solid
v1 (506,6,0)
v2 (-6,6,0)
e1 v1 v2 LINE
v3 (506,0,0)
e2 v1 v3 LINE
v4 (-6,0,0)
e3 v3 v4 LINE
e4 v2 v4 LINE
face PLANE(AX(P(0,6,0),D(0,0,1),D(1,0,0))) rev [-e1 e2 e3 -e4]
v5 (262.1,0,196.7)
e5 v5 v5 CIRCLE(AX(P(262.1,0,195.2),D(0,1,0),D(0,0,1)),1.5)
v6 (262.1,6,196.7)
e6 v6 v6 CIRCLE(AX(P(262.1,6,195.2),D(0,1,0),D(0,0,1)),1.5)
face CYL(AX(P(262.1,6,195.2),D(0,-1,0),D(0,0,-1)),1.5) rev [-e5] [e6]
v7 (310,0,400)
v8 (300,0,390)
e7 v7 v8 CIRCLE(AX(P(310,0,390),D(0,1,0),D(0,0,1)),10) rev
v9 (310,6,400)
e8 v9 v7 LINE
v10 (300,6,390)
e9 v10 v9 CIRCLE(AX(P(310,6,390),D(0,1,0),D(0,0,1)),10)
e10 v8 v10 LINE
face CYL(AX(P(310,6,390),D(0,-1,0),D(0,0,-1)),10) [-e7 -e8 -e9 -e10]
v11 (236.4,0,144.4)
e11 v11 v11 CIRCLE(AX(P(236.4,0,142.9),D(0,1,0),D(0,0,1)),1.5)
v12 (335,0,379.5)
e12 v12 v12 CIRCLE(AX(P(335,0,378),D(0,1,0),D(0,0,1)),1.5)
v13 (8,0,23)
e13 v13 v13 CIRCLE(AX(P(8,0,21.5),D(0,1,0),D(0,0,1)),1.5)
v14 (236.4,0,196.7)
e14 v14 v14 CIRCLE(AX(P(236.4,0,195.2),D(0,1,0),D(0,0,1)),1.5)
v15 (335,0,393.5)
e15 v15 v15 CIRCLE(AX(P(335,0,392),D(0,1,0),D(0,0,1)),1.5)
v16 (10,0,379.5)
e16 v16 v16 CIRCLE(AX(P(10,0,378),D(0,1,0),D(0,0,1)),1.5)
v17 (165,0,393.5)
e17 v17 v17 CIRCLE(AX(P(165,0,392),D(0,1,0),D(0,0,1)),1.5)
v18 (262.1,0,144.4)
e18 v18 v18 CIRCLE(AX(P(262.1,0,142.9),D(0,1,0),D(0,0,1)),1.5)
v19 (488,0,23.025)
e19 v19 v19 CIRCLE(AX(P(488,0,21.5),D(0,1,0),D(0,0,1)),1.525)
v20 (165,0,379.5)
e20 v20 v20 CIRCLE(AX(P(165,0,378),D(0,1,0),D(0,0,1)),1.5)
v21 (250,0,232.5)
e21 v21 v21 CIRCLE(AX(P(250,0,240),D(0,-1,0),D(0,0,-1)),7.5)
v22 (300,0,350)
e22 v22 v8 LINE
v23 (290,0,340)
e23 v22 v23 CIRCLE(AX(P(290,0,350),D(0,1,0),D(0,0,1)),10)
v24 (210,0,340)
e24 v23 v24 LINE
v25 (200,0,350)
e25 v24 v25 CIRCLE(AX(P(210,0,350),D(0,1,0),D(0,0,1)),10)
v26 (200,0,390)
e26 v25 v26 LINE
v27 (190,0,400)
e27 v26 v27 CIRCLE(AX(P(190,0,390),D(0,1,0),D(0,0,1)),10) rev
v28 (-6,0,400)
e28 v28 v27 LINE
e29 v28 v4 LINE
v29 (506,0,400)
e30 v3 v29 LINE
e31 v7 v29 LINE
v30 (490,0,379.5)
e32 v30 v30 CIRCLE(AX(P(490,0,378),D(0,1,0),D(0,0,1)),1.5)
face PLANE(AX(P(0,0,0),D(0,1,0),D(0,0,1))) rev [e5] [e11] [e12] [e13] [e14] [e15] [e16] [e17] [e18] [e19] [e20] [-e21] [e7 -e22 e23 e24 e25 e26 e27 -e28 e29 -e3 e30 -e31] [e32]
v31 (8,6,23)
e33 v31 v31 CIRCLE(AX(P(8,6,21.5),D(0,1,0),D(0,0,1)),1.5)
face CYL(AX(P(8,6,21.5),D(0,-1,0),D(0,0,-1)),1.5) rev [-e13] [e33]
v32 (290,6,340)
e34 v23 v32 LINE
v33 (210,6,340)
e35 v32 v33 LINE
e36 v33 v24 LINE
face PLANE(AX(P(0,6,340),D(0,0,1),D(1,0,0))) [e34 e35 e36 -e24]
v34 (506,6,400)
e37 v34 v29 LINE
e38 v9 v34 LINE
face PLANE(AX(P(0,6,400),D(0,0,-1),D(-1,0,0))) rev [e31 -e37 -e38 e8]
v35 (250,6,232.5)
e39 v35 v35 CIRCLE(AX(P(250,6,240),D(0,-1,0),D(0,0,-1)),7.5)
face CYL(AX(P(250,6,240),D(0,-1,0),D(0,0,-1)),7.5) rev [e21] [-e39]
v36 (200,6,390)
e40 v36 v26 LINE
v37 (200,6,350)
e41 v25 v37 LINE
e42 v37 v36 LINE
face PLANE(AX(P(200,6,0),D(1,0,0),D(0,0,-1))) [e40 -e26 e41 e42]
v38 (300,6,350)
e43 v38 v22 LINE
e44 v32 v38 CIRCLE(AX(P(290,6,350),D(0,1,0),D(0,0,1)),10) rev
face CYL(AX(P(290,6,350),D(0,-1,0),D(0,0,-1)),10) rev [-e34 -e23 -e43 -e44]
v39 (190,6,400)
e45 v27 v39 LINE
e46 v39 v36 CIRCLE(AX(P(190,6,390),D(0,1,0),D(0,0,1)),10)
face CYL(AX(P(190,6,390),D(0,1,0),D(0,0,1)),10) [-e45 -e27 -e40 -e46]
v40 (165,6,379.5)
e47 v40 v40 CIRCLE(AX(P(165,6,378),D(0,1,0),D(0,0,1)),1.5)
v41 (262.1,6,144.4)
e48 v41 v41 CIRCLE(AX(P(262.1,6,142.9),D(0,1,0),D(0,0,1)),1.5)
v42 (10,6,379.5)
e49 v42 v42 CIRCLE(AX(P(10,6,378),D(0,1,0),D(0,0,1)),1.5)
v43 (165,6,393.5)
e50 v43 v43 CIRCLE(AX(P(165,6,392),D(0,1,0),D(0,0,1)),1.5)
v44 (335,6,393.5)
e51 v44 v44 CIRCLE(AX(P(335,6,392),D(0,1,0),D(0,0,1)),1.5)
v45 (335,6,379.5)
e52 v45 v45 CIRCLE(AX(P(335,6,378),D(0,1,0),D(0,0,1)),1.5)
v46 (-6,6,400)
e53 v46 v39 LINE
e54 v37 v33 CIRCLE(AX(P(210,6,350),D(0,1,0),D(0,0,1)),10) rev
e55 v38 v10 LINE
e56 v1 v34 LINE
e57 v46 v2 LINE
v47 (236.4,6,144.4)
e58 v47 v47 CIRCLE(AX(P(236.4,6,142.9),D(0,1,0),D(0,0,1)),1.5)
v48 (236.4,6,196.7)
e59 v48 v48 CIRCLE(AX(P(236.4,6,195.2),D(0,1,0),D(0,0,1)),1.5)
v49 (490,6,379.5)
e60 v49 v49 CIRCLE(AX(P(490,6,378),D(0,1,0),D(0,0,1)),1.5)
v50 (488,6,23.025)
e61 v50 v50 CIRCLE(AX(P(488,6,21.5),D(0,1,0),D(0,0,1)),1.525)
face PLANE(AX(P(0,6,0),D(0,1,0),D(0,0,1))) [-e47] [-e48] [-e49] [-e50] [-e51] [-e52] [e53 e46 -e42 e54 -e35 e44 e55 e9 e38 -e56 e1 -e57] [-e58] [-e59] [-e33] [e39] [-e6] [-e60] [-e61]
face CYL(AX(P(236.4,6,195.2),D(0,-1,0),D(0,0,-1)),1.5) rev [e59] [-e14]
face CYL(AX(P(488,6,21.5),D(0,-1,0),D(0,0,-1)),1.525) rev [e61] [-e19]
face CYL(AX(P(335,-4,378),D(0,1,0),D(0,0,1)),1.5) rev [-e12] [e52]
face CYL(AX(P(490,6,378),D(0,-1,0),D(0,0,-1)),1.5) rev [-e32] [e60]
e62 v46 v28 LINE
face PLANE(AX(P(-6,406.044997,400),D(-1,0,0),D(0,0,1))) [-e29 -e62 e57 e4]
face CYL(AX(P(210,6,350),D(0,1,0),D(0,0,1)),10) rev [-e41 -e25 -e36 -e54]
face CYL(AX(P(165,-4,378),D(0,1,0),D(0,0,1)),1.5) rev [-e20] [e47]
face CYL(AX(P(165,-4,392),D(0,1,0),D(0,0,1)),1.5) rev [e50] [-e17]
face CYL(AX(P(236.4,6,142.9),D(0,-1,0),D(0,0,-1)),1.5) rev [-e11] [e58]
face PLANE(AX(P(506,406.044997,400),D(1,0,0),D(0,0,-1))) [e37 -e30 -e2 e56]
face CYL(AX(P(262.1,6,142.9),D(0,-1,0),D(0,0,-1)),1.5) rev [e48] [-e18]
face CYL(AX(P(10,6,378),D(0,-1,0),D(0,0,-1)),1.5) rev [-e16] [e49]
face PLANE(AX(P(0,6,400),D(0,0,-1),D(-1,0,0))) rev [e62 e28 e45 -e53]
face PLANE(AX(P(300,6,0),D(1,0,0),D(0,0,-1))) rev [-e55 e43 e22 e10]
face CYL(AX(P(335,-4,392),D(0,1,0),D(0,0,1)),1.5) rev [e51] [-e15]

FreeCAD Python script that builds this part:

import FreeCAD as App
import Part
import Sketcher
from FreeCAD import Vector


def edges_at(feature, points):
    """Names of the edges that pass closest to the given points."""
    edges = feature.Shape.Edges
    near = lambda p: min(range(len(edges)), key=lambda i: edges[i].distToShape(Part.Vertex(*p))[0])
    return sorted({f"Edge{near(p) + 1}" for p in points})


def add_polygon(sketch, points):
    """Adds a closed chain of lines whose ends are joined by coincident constraints."""
    first, n = sketch.GeometryCount, len(points)
    for a, b in zip(points, points[1:] + points[:1]):
        sketch.addGeometry(Part.LineSegment(App.Vector(*a, 0), App.Vector(*b, 0)), False)
    for i in range(n):
        sketch.addConstraint(Sketcher.Constraint("Coincident", first + i, 2, first + (i + 1) % n, 1))

doc = App.newDocument("Part")
body = doc.addObject("PartDesign::Body", "Body")

# Sketch on XZ plane
sketch1 = body.newObject("Sketcher::SketchObject", "Sketch")
sketch1.AttachmentSupport = (doc.getObject("XZ_Plane"), [""])
sketch1.MapMode = "FlatFace"
add_polygon(sketch1, [(0, 0), (0, 400), (500, 400), (500, 0)])  # lines 0-3
sketch1.addGeometry(Part.Circle(Vector(10, 378, 0), Vector(0, 0, 1), 1.5), False)  # 4
sketch1.addGeometry(Part.Circle(Vector(490, 378, 0), Vector(0, 0, 1), 1.5), False)  # 5
sketch1.addGeometry(Part.Circle(Vector(236.4, 195.2, 0), Vector(0, 0, 1), 1.5), False)  # 6
sketch1.addGeometry(Part.Circle(Vector(236.4, 142.9, 0), Vector(0, 0, 1), 1.5), False)  # 7
sketch1.addGeometry(Part.Circle(Vector(8, 21.5, 0), Vector(0, 0, 1), 1.5), False)  # 8
sketch1.addGeometry(Part.Circle(Vector(262.1, 195.2, 0), Vector(0, 0, 1), 1.5), False)  # 9
sketch1.addGeometry(Part.Circle(Vector(262.1, 142.9, 0), Vector(0, 0, 1), 1.5), False)  # 10
sketch1.addGeometry(Part.Circle(Vector(488, 21.5, 0), Vector(0, 0, 1), 1.5), False)  # 11
sketch1.addConstraint([
    Sketcher.Constraint("Vertical", 0),
    Sketcher.Constraint("Horizontal", 1),
    Sketcher.Constraint("Vertical", 2),
    Sketcher.Constraint("Horizontal", 3),
    Sketcher.Constraint("Coincident", 3, 2, -1, 1),
    Sketcher.Constraint("Equal", 4, 5),
    Sketcher.Constraint("Equal", 5, 6),
    Sketcher.Constraint("Equal", 6, 7),
    Sketcher.Constraint("Equal", 7, 8),
    Sketcher.Constraint("Equal", 8, 9),
    Sketcher.Constraint("Equal", 9, 10),
    Sketcher.Constraint("Horizontal", 4, 3, 5, 3),
    Sketcher.Constraint("Horizontal", 6, 3, 9, 3),
    Sketcher.Constraint("Horizontal", 7, 3, 10, 3),
    Sketcher.Constraint("Horizontal", 8, 3, 11, 3),
    Sketcher.Constraint("Vertical", 6, 3, 7, 3),
    Sketcher.Constraint("Vertical", 9, 3, 10, 3),
    Sketcher.Constraint("Diameter", 4, 3.0),
    Sketcher.Constraint("Diameter", 11, 3.05),
    Sketcher.Constraint("DistanceX", 1, 1, 1, 2, 500.0),
    Sketcher.Constraint("DistanceY", 0, 1, 0, 2, 400.0),
    Sketcher.Constraint("DistanceX", -1, 1, 4, 3, 10.0),
    Sketcher.Constraint("DistanceY", -1, 1, 4, 3, 378.0),
    Sketcher.Constraint("DistanceX", -1, 1, 5, 3, 490.0),
    Sketcher.Constraint("DistanceX", -1, 1, 8, 3, 8.0),
    Sketcher.Constraint("DistanceX", -1, 1, 11, 3, 488.0),
    Sketcher.Constraint("DistanceX", -1, 1, 6, 3, 236.4),
    Sketcher.Constraint("DistanceY", -1, 1, 6, 3, 195.2),
    Sketcher.Constraint("DistanceY", -1, 1, 7, 3, 142.9),
    Sketcher.Constraint("DistanceY", -1, 1, 8, 3, 21.5),
    Sketcher.Constraint("DistanceX", -1, 1, 9, 3, 262.1),
])
pad1 = body.newObject("PartDesign::Pad", "Pad")
pad1.Profile = sketch1
pad1.Length = 6
pad1.Reversed = True

# Sketch on XZ plane
sketch2 = body.newObject("Sketcher::SketchObject", "Sketch001")
sketch2.AttachmentSupport = (doc.getObject("XZ_Plane"), [""])
sketch2.MapMode = "FlatFace"
sketch2.AttachmentOffset = App.Placement(Vector(0, 0, -6), App.Rotation())
sketch2.addGeometry([
    Part.Circle(Vector(165, 378, 0), Vector(0, 0, 1), 1.5),
    Part.Circle(Vector(165, 392, 0), Vector(0, 0, 1), 1.5),
    Part.Circle(Vector(335, 378, 0), Vector(0, 0, 1), 1.5),
    Part.Circle(Vector(335, 392, 0), Vector(0, 0, 1), 1.5),
], False)
sketch2.addConstraint([
    Sketcher.Constraint("Equal", 0, 1),
    Sketcher.Constraint("Equal", 1, 2),
    Sketcher.Constraint("Equal", 2, 3),
    Sketcher.Constraint("Horizontal", 0, 3, 2, 3),
    Sketcher.Constraint("Horizontal", 1, 3, 3, 3),
    Sketcher.Constraint("Vertical", 0, 3, 1, 3),
    Sketcher.Constraint("Vertical", 2, 3, 3, 3),
    Sketcher.Constraint("Diameter", 0, 3.0),
    Sketcher.Constraint("DistanceX", -1, 1, 0, 3, 165.0),
    Sketcher.Constraint("DistanceY", -1, 1, 0, 3, 378.0),
    Sketcher.Constraint("DistanceY", -1, 1, 1, 3, 392.0),
    Sketcher.Constraint("DistanceX", -1, 1, 2, 3, 335.0),
])
pocket1 = body.newObject("PartDesign::Pocket", "Pocket")
pocket1.Profile = sketch2
pocket1.Length = 10
pocket1.Reversed = True

# Sketch on XZ plane
sketch3 = body.newObject("Sketcher::SketchObject", "Sketch002")
sketch3.AttachmentSupport = (doc.getObject("XZ_Plane"), [""])
sketch3.MapMode = "FlatFace"
add_polygon(sketch3, [(300, 340), (300, 400), (200, 400), (200, 340)])  # lines 0-3
sketch3.addGeometry(Part.Circle(Vector(250, 240, 0), Vector(0, 0, 1), 8), False)  # 4
sketch3.addConstraint([
    Sketcher.Constraint("Vertical", 0),
    Sketcher.Constraint("Horizontal", 1),
    Sketcher.Constraint("Vertical", 2),
    Sketcher.Constraint("Horizontal", 3),
    Sketcher.Constraint("Diameter", 4, 15.0),
    Sketcher.Constraint("DistanceX", 1, 2, 1, 1, 100.0),
    Sketcher.Constraint("DistanceY", 0, 1, 0, 2, 60.0),
    Sketcher.Constraint("DistanceX", -1, 1, 4, 3, 250.0),
    Sketcher.Constraint("DistanceY", -1, 1, 4, 3, 240.0),
    Sketcher.Constraint("DistanceX", -1, 1, 0, 2, 300.0),
    Sketcher.Constraint("DistanceY", -1, 1, 0, 2, 400.0),
])
pocket2 = body.newObject("PartDesign::Pocket", "Pocket001")
pocket2.Profile = sketch3
pocket2.Type = "ThroughAll"
doc.recompute()

fillet = body.newObject("PartDesign::Fillet", "Fillet")
fillet.Base = (pocket2, edges_at(pocket2, [
    (300, 3, 340),
    (200, 3, 340),
    (200, 3, 400),
    (300, 3, 400),
]))
fillet.Radius = 10

# Sketch on XZ plane
sketch4 = body.newObject("Sketcher::SketchObject", "Sketch003")
sketch4.AttachmentSupport = (doc.getObject("XZ_Plane"), [""])
sketch4.MapMode = "FlatFace"
sketch4.AttachmentOffset = App.Placement(Vector(0, 0, -6), App.Rotation())
add_polygon(sketch4, [(-6, 400), (-6, 0), (0, 0), (0, 400)])  # lines 0-3
add_polygon(sketch4, [(500, 400), (500, 0), (506, 0), (506, 400)])  # lines 4-7
sketch4.addConstraint([
    Sketcher.Constraint("Vertical", 0),
    Sketcher.Constraint("Horizontal", 1),
    Sketcher.Constraint("Vertical", 2),
    Sketcher.Constraint("Horizontal", 3),
    Sketcher.Constraint("Vertical", 4),
    Sketcher.Constraint("Horizontal", 5),
    Sketcher.Constraint("Vertical", 6),
    Sketcher.Constraint("Horizontal", 7),
    Sketcher.Constraint("Coincident", 1, 2, -1, 1),
    Sketcher.Constraint("PointOnObject", 4, 2, -1),
    Sketcher.Constraint("Horizontal", 3, 2, 6, 2),
    Sketcher.Constraint("Equal", 3, 5),
    Sketcher.Constraint("DistanceX", 1, 1, 1, 2, 6.0),
    Sketcher.Constraint("DistanceY", 0, 2, 0, 1, 400.0),
    Sketcher.Constraint("DistanceX", -1, 1, 4, 2, 500.0),
])
pad2 = body.newObject("PartDesign::Pad", "Pad001")
pad2.Profile = sketch4
pad2.Length = 6

doc.recompute()
